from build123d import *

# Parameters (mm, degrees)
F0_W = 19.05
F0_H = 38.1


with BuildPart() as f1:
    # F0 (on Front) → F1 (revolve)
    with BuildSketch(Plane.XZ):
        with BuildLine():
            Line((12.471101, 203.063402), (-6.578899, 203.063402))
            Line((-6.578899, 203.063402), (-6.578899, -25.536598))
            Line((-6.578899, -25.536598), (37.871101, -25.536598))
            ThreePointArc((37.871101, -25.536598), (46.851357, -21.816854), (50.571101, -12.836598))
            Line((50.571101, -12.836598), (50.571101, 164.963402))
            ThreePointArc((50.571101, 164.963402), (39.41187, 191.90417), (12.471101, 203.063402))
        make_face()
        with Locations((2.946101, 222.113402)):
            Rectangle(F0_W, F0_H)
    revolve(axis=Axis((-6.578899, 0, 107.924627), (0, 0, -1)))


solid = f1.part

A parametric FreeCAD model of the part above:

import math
import FreeCAD as App
import Part
import Sketcher
Q = App.Units.Quantity

doc = App.newDocument("Part")
body = doc.addObject("PartDesign::Body", "Body")

sketch1 = body.newObject("Sketcher::SketchObject", "Sketch")
sketch1.AttachmentSupport = (doc.getObject("XZ_Plane"), [""])
sketch1.MapMode = "FlatFace"
sketch1.addGeometry([
    Part.LineSegment(App.Vector(-7, -26, 0), App.Vector(38, -26, 0)),
    Part.ArcOfCircle(Part.Circle(App.Vector(38, -13, 0), App.Vector(0, 0, 1), 13), math.radians(-90), math.radians(0)),
    Part.LineSegment(App.Vector(51, -13, 0), App.Vector(51, 165, 0)),
    Part.ArcOfCircle(Part.Circle(App.Vector(12, 165, 0), App.Vector(0, 0, 1), 38), math.radians(0), math.radians(90)),
    Part.LineSegment(App.Vector(12, 203, 0), App.Vector(12, 241, 0)),
    Part.LineSegment(App.Vector(12, 241, 0), App.Vector(-7, 241, 0)),
    Part.LineSegment(App.Vector(-7, 241, 0), App.Vector(-7, -26, 0)),
], False)
sketch1.addGeometry(Part.LineSegment(App.Vector(-7, 241, 0), App.Vector(-7, -26, 0)), True)
sketch1.addConstraint([
    Sketcher.Constraint("Tangent", 0, 2, 1, 1),
    Sketcher.Constraint("Tangent", 1, 2, 2, 1),
    Sketcher.Constraint("Tangent", 2, 2, 3, 1),
    Sketcher.Constraint("Coincident", 3, 2, 4, 1),
    Sketcher.Constraint("Coincident", 4, 2, 5, 1),
    Sketcher.Constraint("Coincident", 5, 2, 6, 1),
    Sketcher.Constraint("Coincident", 6, 2, 0, 1),
    Sketcher.Constraint("Horizontal", 0),
    Sketcher.Constraint("Vertical", 2),
    Sketcher.Constraint("Vertical", 4),
    Sketcher.Constraint("Horizontal", 5),
    Sketcher.Constraint("Vertical", 6),
    Sketcher.Constraint("Vertical", 7),
    Sketcher.Constraint("Coincident", 7, 1, 5, 2),
    Sketcher.Constraint("Horizontal", 0, 2, 7, 2),
    Sketcher.Constraint("Radius", 1, Q("0.5 in")),
    Sketcher.Constraint("Radius", 3, Q("1.5 in")),
    Sketcher.Constraint("DistanceY", 2, 1, 2, 2, Q("7 in")),
    Sketcher.Constraint("DistanceY", 4, 1, 4, 2, Q("1.5 in")),
    Sketcher.Constraint("DistanceX", 3, 2, 1, 3, Q("1 in")),
    Sketcher.Constraint("DistanceX", 0, 1, 0, 2, Q("1.75 in")),
    Sketcher.Constraint("DistanceX", -1, 1, 1, 3, Q("37.871101 mm")),
    Sketcher.Constraint("DistanceY", 0, 2, -1, 1, Q("25.536598 mm")),
])
revolution = body.newObject("PartDesign::Revolution", "Revolution")
revolution.Profile = sketch1
revolution.ReferenceAxis = (sketch1, ["Axis0"])
revolution.Angle = 360

doc.recompute()
